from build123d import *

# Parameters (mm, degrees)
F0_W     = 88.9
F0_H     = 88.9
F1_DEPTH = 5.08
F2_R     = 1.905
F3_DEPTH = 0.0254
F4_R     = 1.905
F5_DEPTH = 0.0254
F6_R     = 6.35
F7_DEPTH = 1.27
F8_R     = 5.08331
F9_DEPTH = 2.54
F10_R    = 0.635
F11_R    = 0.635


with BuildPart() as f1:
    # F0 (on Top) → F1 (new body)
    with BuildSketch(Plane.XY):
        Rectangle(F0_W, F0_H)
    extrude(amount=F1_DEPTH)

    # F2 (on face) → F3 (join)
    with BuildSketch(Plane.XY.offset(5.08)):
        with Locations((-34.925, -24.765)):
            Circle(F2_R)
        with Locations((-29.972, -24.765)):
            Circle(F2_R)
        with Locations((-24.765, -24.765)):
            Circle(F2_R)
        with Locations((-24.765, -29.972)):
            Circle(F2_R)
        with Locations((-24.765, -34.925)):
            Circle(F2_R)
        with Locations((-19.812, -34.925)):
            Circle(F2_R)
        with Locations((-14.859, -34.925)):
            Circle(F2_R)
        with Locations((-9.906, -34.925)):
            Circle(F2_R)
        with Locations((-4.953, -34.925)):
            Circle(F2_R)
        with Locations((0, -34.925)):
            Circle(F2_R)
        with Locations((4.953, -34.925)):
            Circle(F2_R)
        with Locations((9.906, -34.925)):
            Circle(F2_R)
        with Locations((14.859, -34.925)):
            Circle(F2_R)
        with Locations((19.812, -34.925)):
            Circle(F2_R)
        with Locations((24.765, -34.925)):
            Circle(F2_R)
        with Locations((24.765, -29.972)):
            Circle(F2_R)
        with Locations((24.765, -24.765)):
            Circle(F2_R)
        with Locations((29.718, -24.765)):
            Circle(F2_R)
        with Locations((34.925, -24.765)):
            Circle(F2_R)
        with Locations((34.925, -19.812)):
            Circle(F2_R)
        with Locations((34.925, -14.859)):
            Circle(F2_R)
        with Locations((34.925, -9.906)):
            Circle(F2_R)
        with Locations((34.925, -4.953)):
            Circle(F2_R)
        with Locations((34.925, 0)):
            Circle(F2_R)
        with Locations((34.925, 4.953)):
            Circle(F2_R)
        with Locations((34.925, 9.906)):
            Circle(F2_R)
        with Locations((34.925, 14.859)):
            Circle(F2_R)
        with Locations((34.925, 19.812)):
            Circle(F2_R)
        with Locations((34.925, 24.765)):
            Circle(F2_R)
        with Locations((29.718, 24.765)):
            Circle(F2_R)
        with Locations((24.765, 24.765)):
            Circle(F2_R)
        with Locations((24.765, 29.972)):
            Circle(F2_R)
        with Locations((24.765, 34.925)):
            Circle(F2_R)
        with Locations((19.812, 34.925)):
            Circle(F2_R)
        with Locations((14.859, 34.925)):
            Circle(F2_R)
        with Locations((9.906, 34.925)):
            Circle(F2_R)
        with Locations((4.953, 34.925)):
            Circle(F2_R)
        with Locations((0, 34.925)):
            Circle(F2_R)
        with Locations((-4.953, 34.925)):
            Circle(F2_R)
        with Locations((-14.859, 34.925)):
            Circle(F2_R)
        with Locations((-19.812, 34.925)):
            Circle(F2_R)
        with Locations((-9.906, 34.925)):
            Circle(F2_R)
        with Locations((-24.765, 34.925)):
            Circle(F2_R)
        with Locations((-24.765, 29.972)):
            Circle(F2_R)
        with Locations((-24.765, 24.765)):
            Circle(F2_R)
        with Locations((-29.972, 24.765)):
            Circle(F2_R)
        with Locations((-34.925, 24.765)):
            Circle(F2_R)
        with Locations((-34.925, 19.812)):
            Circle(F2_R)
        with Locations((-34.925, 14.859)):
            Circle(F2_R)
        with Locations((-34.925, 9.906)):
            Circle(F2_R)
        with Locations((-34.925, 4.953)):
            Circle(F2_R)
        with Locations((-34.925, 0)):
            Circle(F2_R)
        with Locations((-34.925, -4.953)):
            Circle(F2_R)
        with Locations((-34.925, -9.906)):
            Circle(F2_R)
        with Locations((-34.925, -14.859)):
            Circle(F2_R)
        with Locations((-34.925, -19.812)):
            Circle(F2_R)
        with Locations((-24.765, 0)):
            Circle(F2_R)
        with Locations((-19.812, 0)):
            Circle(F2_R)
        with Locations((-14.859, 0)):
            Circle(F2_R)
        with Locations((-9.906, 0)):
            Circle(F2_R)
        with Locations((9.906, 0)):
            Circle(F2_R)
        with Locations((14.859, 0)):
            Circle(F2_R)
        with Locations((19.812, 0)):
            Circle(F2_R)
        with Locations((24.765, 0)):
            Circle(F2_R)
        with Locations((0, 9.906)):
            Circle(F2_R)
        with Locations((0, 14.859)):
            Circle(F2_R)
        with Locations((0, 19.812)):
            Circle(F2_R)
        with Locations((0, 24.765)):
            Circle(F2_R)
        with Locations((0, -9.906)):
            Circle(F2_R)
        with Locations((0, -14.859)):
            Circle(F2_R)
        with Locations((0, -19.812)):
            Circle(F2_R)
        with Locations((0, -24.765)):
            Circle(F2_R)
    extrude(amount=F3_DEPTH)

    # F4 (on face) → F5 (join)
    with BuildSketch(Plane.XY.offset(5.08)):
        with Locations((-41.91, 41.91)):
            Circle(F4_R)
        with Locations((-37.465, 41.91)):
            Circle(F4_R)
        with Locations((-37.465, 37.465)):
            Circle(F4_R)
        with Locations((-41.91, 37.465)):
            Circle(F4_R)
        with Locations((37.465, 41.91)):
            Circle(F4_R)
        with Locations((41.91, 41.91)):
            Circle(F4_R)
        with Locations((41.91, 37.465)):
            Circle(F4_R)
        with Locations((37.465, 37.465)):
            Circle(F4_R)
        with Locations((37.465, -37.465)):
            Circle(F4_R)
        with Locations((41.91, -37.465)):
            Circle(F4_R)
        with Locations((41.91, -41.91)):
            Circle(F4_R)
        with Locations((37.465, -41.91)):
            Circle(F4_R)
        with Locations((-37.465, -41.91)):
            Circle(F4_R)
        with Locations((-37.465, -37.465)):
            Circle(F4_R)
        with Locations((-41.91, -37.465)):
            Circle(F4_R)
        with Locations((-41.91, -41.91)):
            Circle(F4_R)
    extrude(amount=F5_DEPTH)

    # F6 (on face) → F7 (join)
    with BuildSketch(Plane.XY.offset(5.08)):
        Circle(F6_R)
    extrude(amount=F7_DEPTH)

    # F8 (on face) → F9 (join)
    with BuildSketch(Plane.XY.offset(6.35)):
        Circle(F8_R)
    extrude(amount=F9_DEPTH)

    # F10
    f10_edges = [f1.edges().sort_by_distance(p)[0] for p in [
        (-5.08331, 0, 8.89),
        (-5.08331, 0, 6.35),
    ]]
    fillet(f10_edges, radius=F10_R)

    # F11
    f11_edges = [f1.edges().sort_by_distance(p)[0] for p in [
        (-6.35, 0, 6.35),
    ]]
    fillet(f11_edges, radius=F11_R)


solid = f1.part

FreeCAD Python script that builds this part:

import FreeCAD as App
import Part
import Sketcher
Q = App.Units.Quantity


def edges_at(feature, points):
    """Names of the edges that pass closest to the given points."""
    edges = feature.Shape.Edges
    near = lambda p: min(range(len(edges)), key=lambda i: edges[i].distToShape(Part.Vertex(*p))[0])
    return sorted({f"Edge{near(p) + 1}" for p in points})

doc = App.newDocument("Part")
body = doc.addObject("PartDesign::Body", "Body")

# Sketch on XY plane
sketch1 = body.newObject("Sketcher::SketchObject", "Sketch")
sketch1.AttachmentSupport = (doc.getObject("XY_Plane"), [""])
sketch1.MapMode = "FlatFace"
sketch1.addGeometry([
    Part.LineSegment(App.Vector(-44.45, 44.45, 0), App.Vector(-44.45, -44.45, 0)),
    Part.LineSegment(App.Vector(-44.45, -44.45, 0), App.Vector(44.45, -44.45, 0)),
    Part.LineSegment(App.Vector(44.45, -44.45, 0), App.Vector(44.45, 44.45, 0)),
    Part.LineSegment(App.Vector(44.45, 44.45, 0), App.Vector(-44.45, 44.45, 0)),
], False)
sketch1.addConstraint([
    Sketcher.Constraint("Coincident", 0, 2, 1, 1),
    Sketcher.Constraint("Coincident", 1, 2, 2, 1),
    Sketcher.Constraint("Coincident", 2, 2, 3, 1),
    Sketcher.Constraint("Coincident", 3, 2, 0, 1),
    Sketcher.Constraint("Vertical", 0),
    Sketcher.Constraint("Horizontal", 1),
    Sketcher.Constraint("Vertical", 2),
    Sketcher.Constraint("Horizontal", 3),
    Sketcher.Constraint("Symmetric", 0, 2, 2, 2, -1, 1),
    Sketcher.Constraint("Equal", 3, 0),
    Sketcher.Constraint("DistanceX", 1, 1, 1, 2, Q("3.5 in")),
])
pad1 = body.newObject("PartDesign::Pad", "Pad")
pad1.Profile = sketch1
pad1.Length = Q("0.2 in")

# Sketch on XY plane
sketch2 = body.newObject("Sketcher::SketchObject", "Sketch001")
sketch2.AttachmentSupport = (doc.getObject("XY_Plane"), [""])
sketch2.MapMode = "FlatFace"
sketch2.AttachmentOffset = App.Placement(App.Vector(0, 0, 0.2 * 25.4), App.Rotation())
sketch2.addGeometry([
    Part.Circle(App.Vector(-34.925, -24.765, 0), App.Vector(0, 0, 1), 1.905),  # 0
    Part.Circle(App.Vector(-29.972, -24.765, 0), App.Vector(0, 0, 1), 1.905),  # 1
    Part.Circle(App.Vector(-24.765, -24.765, 0), App.Vector(0, 0, 1), 1.905),  # 2
    Part.Circle(App.Vector(-24.765, -29.972, 0), App.Vector(0, 0, 1), 1.905),  # 3
    Part.Circle(App.Vector(-24.765, -34.925, 0), App.Vector(0, 0, 1), 1.905),  # 4
    Part.Circle(App.Vector(-19.812, -34.925, 0), App.Vector(0, 0, 1), 1.905),  # 5
    Part.Circle(App.Vector(-14.859, -34.925, 0), App.Vector(0, 0, 1), 1.905),  # 6
    Part.Circle(App.Vector(-9.906, -34.925, 0), App.Vector(0, 0, 1), 1.905),  # 7
    Part.Circle(App.Vector(-4.953, -34.925, 0), App.Vector(0, 0, 1), 1.905),  # 8
    Part.Circle(App.Vector(0, -34.925, 0), App.Vector(0, 0, 1), 1.905),  # 9
    Part.Circle(App.Vector(4.953, -34.925, 0), App.Vector(0, 0, 1), 1.905),  # 10
    Part.Circle(App.Vector(9.906, -34.925, 0), App.Vector(0, 0, 1), 1.905),  # 11
    Part.Circle(App.Vector(14.859, -34.925, 0), App.Vector(0, 0, 1), 1.905),  # 12
    Part.Circle(App.Vector(19.812, -34.925, 0), App.Vector(0, 0, 1), 1.905),  # 13
    Part.Circle(App.Vector(24.765, -34.925, 0), App.Vector(0, 0, 1), 1.905),  # 14
    Part.Circle(App.Vector(24.765, -29.972, 0), App.Vector(0, 0, 1), 1.905),  # 15
    Part.Circle(App.Vector(24.765, -24.765, 0), App.Vector(0, 0, 1), 1.905),  # 16
    Part.Circle(App.Vector(29.718, -24.765, 0), App.Vector(0, 0, 1), 1.905),  # 17
    Part.Circle(App.Vector(34.925, -24.765, 0), App.Vector(0, 0, 1), 1.905),  # 18
    Part.Circle(App.Vector(34.925, -19.812, 0), App.Vector(0, 0, 1), 1.905),  # 19
    Part.Circle(App.Vector(34.925, -14.859, 0), App.Vector(0, 0, 1), 1.905),  # 20
    Part.Circle(App.Vector(34.925, -9.906, 0), App.Vector(0, 0, 1), 1.905),  # 21
    Part.Circle(App.Vector(34.925, -4.953, 0), App.Vector(0, 0, 1), 1.905),  # 22
    Part.Circle(App.Vector(34.925, 0, 0), App.Vector(0, 0, 1), 1.905),  # 23
    Part.Circle(App.Vector(34.925, 4.953, 0), App.Vector(0, 0, 1), 1.905),  # 24
    Part.Circle(App.Vector(34.925, 9.906, 0), App.Vector(0, 0, 1), 1.905),  # 25
    Part.Circle(App.Vector(34.925, 14.859, 0), App.Vector(0, 0, 1), 1.905),  # 26
    Part.Circle(App.Vector(34.925, 19.812, 0), App.Vector(0, 0, 1), 1.905),  # 27
    Part.Circle(App.Vector(34.925, 24.765, 0), App.Vector(0, 0, 1), 1.905),  # 28
    Part.Circle(App.Vector(29.718, 24.765, 0), App.Vector(0, 0, 1), 1.905),  # 29
    Part.Circle(App.Vector(24.765, 24.765, 0), App.Vector(0, 0, 1), 1.905),  # 30
    Part.Circle(App.Vector(24.765, 29.972, 0), App.Vector(0, 0, 1), 1.905),  # 31
    Part.Circle(App.Vector(24.765, 34.925, 0), App.Vector(0, 0, 1), 1.905),  # 32
    Part.Circle(App.Vector(19.812, 34.925, 0), App.Vector(0, 0, 1), 1.905),  # 33
    Part.Circle(App.Vector(14.859, 34.925, 0), App.Vector(0, 0, 1), 1.905),  # 34
    Part.Circle(App.Vector(9.906, 34.925, 0), App.Vector(0, 0, 1), 1.905),  # 35
    Part.Circle(App.Vector(4.953, 34.925, 0), App.Vector(0, 0, 1), 1.905),  # 36
    Part.Circle(App.Vector(0, 34.925, 0), App.Vector(0, 0, 1), 1.905),  # 37
    Part.Circle(App.Vector(-4.953, 34.925, 0), App.Vector(0, 0, 1), 1.905),  # 38
    Part.Circle(App.Vector(-14.859, 34.925, 0), App.Vector(0, 0, 1), 1.905),  # 39
    Part.Circle(App.Vector(-19.812, 34.925, 0), App.Vector(0, 0, 1), 1.905),  # 40
    Part.Circle(App.Vector(-9.906, 34.925, 0), App.Vector(0, 0, 1), 1.905),  # 41
    Part.Circle(App.Vector(-24.765, 34.925, 0), App.Vector(0, 0, 1), 1.905),  # 42
    Part.Circle(App.Vector(-24.765, 29.972, 0), App.Vector(0, 0, 1), 1.905),  # 43
    Part.Circle(App.Vector(-24.765, 24.765, 0), App.Vector(0, 0, 1), 1.905),  # 44
    Part.Circle(App.Vector(-29.972, 24.765, 0), App.Vector(0, 0, 1), 1.905),  # 45
    Part.Circle(App.Vector(-34.925, 24.765, 0), App.Vector(0, 0, 1), 1.905),  # 46
    Part.Circle(App.Vector(-34.925, 19.812, 0), App.Vector(0, 0, 1), 1.905),  # 47
    Part.Circle(App.Vector(-34.925, 14.859, 0), App.Vector(0, 0, 1), 1.905),  # 48
    Part.Circle(App.Vector(-34.925, 9.906, 0), App.Vector(0, 0, 1), 1.905),  # 49
    Part.Circle(App.Vector(-34.925, 4.953, 0), App.Vector(0, 0, 1), 1.905),  # 50
    Part.Circle(App.Vector(-34.925, 0, 0), App.Vector(0, 0, 1), 1.905),  # 51
    Part.Circle(App.Vector(-34.925, -4.953, 0), App.Vector(0, 0, 1), 1.905),  # 52
    Part.Circle(App.Vector(-34.925, -9.906, 0), App.Vector(0, 0, 1), 1.905),  # 53
    Part.Circle(App.Vector(-34.925, -14.859, 0), App.Vector(0, 0, 1), 1.905),  # 54
    Part.Circle(App.Vector(-34.925, -19.812, 0), App.Vector(0, 0, 1), 1.905),  # 55
    Part.Circle(App.Vector(-24.765, 0, 0), App.Vector(0, 0, 1), 1.905),  # 56
    Part.Circle(App.Vector(-19.812, 0, 0), App.Vector(0, 0, 1), 1.905),  # 57
    Part.Circle(App.Vector(-14.859, 0, 0), App.Vector(0, 0, 1), 1.905),  # 58
    Part.Circle(App.Vector(-9.906, 0, 0), App.Vector(0, 0, 1), 1.905),  # 59
    Part.Circle(App.Vector(9.906, 0, 0), App.Vector(0, 0, 1), 1.905),  # 60
    Part.Circle(App.Vector(14.859, 0, 0), App.Vector(0, 0, 1), 1.905),  # 61
    Part.Circle(App.Vector(19.812, 0, 0), App.Vector(0, 0, 1), 1.905),  # 62
    Part.Circle(App.Vector(24.765, 0, 0), App.Vector(0, 0, 1), 1.905),  # 63
    Part.Circle(App.Vector(0, 9.906, 0), App.Vector(0, 0, 1), 1.905),  # 64
    Part.Circle(App.Vector(0, 14.859, 0), App.Vector(0, 0, 1), 1.905),  # 65
    Part.Circle(App.Vector(0, 19.812, 0), App.Vector(0, 0, 1), 1.905),  # 66
    Part.Circle(App.Vector(0, 24.765, 0), App.Vector(0, 0, 1), 1.905),  # 67
    Part.Circle(App.Vector(0, -9.906, 0), App.Vector(0, 0, 1), 1.905),  # 68
    Part.Circle(App.Vector(0, -14.859, 0), App.Vector(0, 0, 1), 1.905),  # 69
    Part.Circle(App.Vector(0, -19.812, 0), App.Vector(0, 0, 1), 1.905),  # 70
    Part.Circle(App.Vector(0, -24.765, 0), App.Vector(0, 0, 1), 1.905),  # 71
], False)
sketch2.addConstraint([
    Sketcher.Constraint("Equal", 0, 1),
    Sketcher.Constraint("Equal", 1, 2),
    Sketcher.Constraint("Equal", 2, 3),
    Sketcher.Constraint("Equal", 3, 4),
    Sketcher.Constraint("Equal", 4, 5),
    Sketcher.Constraint("Equal", 5, 6),
    Sketcher.Constraint("Equal", 6, 7),
    Sketcher.Constraint("Equal", 7, 8),
    Sketcher.Constraint("Equal", 8, 9),
    Sketcher.Constraint("Equal", 9, 10),
    Sketcher.Constraint("Equal", 10, 11),
    Sketcher.Constraint("Equal", 11, 12),
    Sketcher.Constraint("Equal", 12, 13),
    Sketcher.Constraint("Equal", 13, 14),
    Sketcher.Constraint("Equal", 14, 15),
    Sketcher.Constraint("Equal", 15, 16),
    Sketcher.Constraint("Equal", 16, 17),
    Sketcher.Constraint("Equal", 17, 18),
    Sketcher.Constraint("Equal", 18, 19),
    Sketcher.Constraint("Equal", 19, 20),
    Sketcher.Constraint("Equal", 20, 21),
    Sketcher.Constraint("Equal", 21, 22),
    Sketcher.Constraint("Equal", 22, 23),
    Sketcher.Constraint("Equal", 23, 24),
    Sketcher.Constraint("Equal", 24, 25),
    Sketcher.Constraint("Equal", 25, 26),
    Sketcher.Constraint("Equal", 26, 27),
    Sketcher.Constraint("Equal", 27, 28),
    Sketcher.Constraint("Equal", 28, 29),
    Sketcher.Constraint("Equal", 29, 30),
    Sketcher.Constraint("Equal", 30, 31),
    Sketcher.Constraint("Equal", 31, 32),
    Sketcher.Constraint("Equal", 32, 33),
    Sketcher.Constraint("Equal", 33, 34),
    Sketcher.Constraint("Equal", 34, 35),
    Sketcher.Constraint("Equal", 35, 36),
    Sketcher.Constraint("Equal", 36, 37),
    Sketcher.Constraint("Equal", 37, 38),
    Sketcher.Constraint("Equal", 38, 39),
    Sketcher.Constraint("Equal", 39, 40),
    Sketcher.Constraint("Equal", 40, 41),
    Sketcher.Constraint("Equal", 41, 42),
    Sketcher.Constraint("Equal", 42, 43),
    Sketcher.Constraint("Equal", 43, 44),
    Sketcher.Constraint("Equal", 44, 45),
    Sketcher.Constraint("Equal", 45, 46),
    Sketcher.Constraint("Equal", 46, 47),
    Sketcher.Constraint("Equal", 47, 48),
    Sketcher.Constraint("Equal", 48, 49),
    Sketcher.Constraint("Equal", 49, 50),
    Sketcher.Constraint("Equal", 50, 51),
    Sketcher.Constraint("Equal", 51, 52),
    Sketcher.Constraint("Equal", 52, 53),
    Sketcher.Constraint("Equal", 53, 54),
    Sketcher.Constraint("Equal", 54, 55),
    Sketcher.Constraint("Equal", 55, 56),
    Sketcher.Constraint("Equal", 56, 57),
    Sketcher.Constraint("Equal", 57, 58),
    Sketcher.Constraint("Equal", 58, 59),
    Sketcher.Constraint("Equal", 59, 60),
    Sketcher.Constraint("Equal", 60, 61),
    Sketcher.Constraint("Equal", 61, 62),
    Sketcher.Constraint("Equal", 62, 63),
    Sketcher.Constraint("Equal", 63, 64),
    Sketcher.Constraint("Equal", 64, 65),
    Sketcher.Constraint("Equal", 65, 66),
    Sketcher.Constraint("Equal", 66, 67),
    Sketcher.Constraint("Equal", 67, 68),
    Sketcher.Constraint("Equal", 68, 69),
    Sketcher.Constraint("Equal", 69, 70),
    Sketcher.Constraint("Equal", 70, 71),
    Sketcher.Constraint("Symmetric", 0, 3, 28, 3, -1, 1),
    Sketcher.Constraint("Symmetric", 2, 3, 30, 3, -1, 1),
    Sketcher.Constraint("Symmetric", 3, 3, 31, 3, -1, 1),
    Sketcher.Constraint("Symmetric", 4, 3, 32, 3, -1, 1),
    Sketcher.Constraint("Symmetric", 5, 3, 33, 3, -1, 1),
    Sketcher.Constraint("Symmetric", 6, 3, 34, 3, -1, 1),
    Sketcher.Constraint("Symmetric", 7, 3, 35, 3, -1, 1),
    Sketcher.Constraint("Symmetric", 8, 3, 36, 3, -1, 1),
    Sketcher.Constraint("Symmetric", 9, 3, 37, 3, -1, 1),
    Sketcher.Constraint("Symmetric", 10, 3, 38, 3, -1, 1),
    Sketcher.Constraint("Symmetric", 12, 3, 39, 3, -1, 1),
    Sketcher.Constraint("Symmetric", 13, 3, 40, 3, -1, 1),
    Sketcher.Constraint("Symmetric", 11, 3, 41, 3, -1, 1),
    Sketcher.Constraint("Symmetric", 14, 3, 42, 3, -1, 1),
    Sketcher.Constraint("Symmetric", 15, 3, 43, 3, -1, 1),
    Sketcher.Constraint("Symmetric", 16, 3, 44, 3, -1, 1),
    Sketcher.Constraint("Symmetric", 18, 3, 46, 3, -1, 1),
    Sketcher.Constraint("Symmetric", 19, 3, 47, 3, -1, 1),
    Sketcher.Constraint("Symmetric", 20, 3, 48, 3, -1, 1),
    Sketcher.Constraint("Symmetric", 21, 3, 49, 3, -1, 1),
    Sketcher.Constraint("Symmetric", 22, 3, 50, 3, -1, 1),
    Sketcher.Constraint("Symmetric", 23, 3, 51, 3, -1, 1),
    Sketcher.Constraint("Symmetric", 24, 3, 52, 3, -1, 1),
    Sketcher.Constraint("Symmetric", 25, 3, 53, 3, -1, 1),
    Sketcher.Constraint("Symmetric", 26, 3, 54, 3, -1, 1),
    Sketcher.Constraint("Symmetric", 27, 3, 55, 3, -1, 1),
    Sketcher.Constraint("Symmetric", 59, 3, 60, 3, -1, 1),
    Sketcher.Constraint("Symmetric", 58, 3, 61, 3, -1, 1),
    Sketcher.Constraint("Symmetric", 57, 3, 62, 3, -1, 1),
    Sketcher.Constraint("Symmetric", 56, 3, 63, 3, -1, 1),
    Sketcher.Constraint("Symmetric", 64, 3, 68, 3, -1, 1),
    Sketcher.Constraint("Symmetric", 65, 3, 69, 3, -1, 1),
    Sketcher.Constraint("Symmetric", 66, 3, 70, 3, -1, 1),
    Sketcher.Constraint("Symmetric", 67, 3, 71, 3, -1, 1),
    Sketcher.Constraint("Symmetric", 8, 3, 10, 3, -2),
    Sketcher.Constraint("Symmetric", 7, 3, 11, 3, -2),
    Sketcher.Constraint("Symmetric", 6, 3, 12, 3, -2),
    Sketcher.Constraint("Symmetric", 5, 3, 13, 3, -2),
    Sketcher.Constraint("Symmetric", 4, 3, 14, 3, -2),
    Sketcher.Constraint("Symmetric", 3, 3, 15, 3, -2),
    Sketcher.Constraint("Symmetric", 2, 3, 16, 3, -2),
    Sketcher.Constraint("Symmetric", 0, 3, 18, 3, -2),
    Sketcher.Constraint("Symmetric", 27, 3, 47, 3, -2),
    Sketcher.Constraint("Symmetric", 26, 3, 48, 3, -2),
    Sketcher.Constraint("Symmetric", 25, 3, 49, 3, -2),
    Sketcher.Constraint("Symmetric", 24, 3, 50, 3, -2),
    Sketcher.Constraint("Symmetric", 17, 3, 29, 3, -1),
    Sketcher.Constraint("Symmetric", 1, 3, 45, 3, -1),
    Sketcher.Constraint("PointOnObject", 9, 3, -2),
    Sketcher.Constraint("PointOnObject", 23, 3, -1),
    Sketcher.Constraint("PointOnObject", 56, 3, -1),
    Sketcher.Constraint("PointOnObject", 57, 3, -1),
    Sketcher.Constraint("PointOnObject", 58, 3, -1),
    Sketcher.Constraint("PointOnObject", 59, 3, -1),
    Sketcher.Constraint("PointOnObject", 64, 3, -2),
    Sketcher.Constraint("PointOnObject", 65, 3, -2),
    Sketcher.Constraint("PointOnObject", 66, 3, -2),
    Sketcher.Constraint("PointOnObject", 67, 3, -2),
    Sketcher.Constraint("Horizontal", 0, 3, 1, 3),
    Sketcher.Constraint("Horizontal", 1, 3, 2, 3),
    Sketcher.Constraint("Horizontal", 4, 3, 5, 3),
    Sketcher.Constraint("Horizontal", 5, 3, 6, 3),
    Sketcher.Constraint("Horizontal", 6, 3, 7, 3),
    Sketcher.Constraint("Horizontal", 7, 3, 8, 3),
    Sketcher.Constraint("Horizontal", 8, 3, 9, 3),
    Sketcher.Constraint("Horizontal", 16, 3, 17, 3),
    Sketcher.Constraint("Horizontal", 49, 3, 64, 3),
    Sketcher.Constraint("Horizontal", 48, 3, 65, 3),
    Sketcher.Constraint("Horizontal", 47, 3, 66, 3),
    Sketcher.Constraint("Horizontal", 46, 3, 67, 3),
    Sketcher.Constraint("Vertical", 2, 3, 3, 3),
    Sketcher.Constraint("Vertical", 3, 3, 4, 3),
    Sketcher.Constraint("Vertical", 18, 3, 19, 3),
    Sketcher.Constraint("Vertical", 19, 3, 20, 3),
    Sketcher.Constraint("Vertical", 20, 3, 21, 3),
    Sketcher.Constraint("Vertical", 21, 3, 22, 3),
    Sketcher.Constraint("Vertical", 22, 3, 23, 3),
    Sketcher.Constraint("Vertical", 44, 3, 56, 3),
    Sketcher.Constraint("Vertical", 40, 3, 57, 3),
    Sketcher.Constraint("Vertical", 39, 3, 58, 3),
    Sketcher.Constraint("Vertical", 41, 3, 59, 3),
    Sketcher.Constraint("Diameter", 0, Q("0.15 in")),
    Sketcher.Constraint("DistanceX", 1, 3, -1, 1, Q("1.18 in")),
    Sketcher.Constraint("DistanceY", 3, 3, -1, 1, Q("1.18 in")),
    Sketcher.Constraint("DistanceX", 5, 3, -1, 1, Q("0.78 in")),
    Sketcher.Constraint("DistanceX", 7, 3, -1, 1, Q("0.39 in")),
    Sketcher.Constraint("DistanceX", -1, 1, 17, 3, Q("1.17 in")),
    Sketcher.Constraint("DistanceY", 19, 3, -1, 1, Q("0.78 in")),
    Sketcher.Constraint("DistanceY", 21, 3, -1, 1, Q("0.39 in")),
    Sketcher.Constraint("DistanceX", 0, 3, -1, 1, Q("1.375 in")),
    Sketcher.Constraint("DistanceY", 0, 3, -1, 1, Q("0.975 in")),
    Sketcher.Constraint("DistanceX", 2, 3, -1, 1, Q("0.975 in")),
    Sketcher.Constraint("DistanceY", 4, 3, -1, 1, Q("1.375 in")),
    Sketcher.Constraint("DistanceX", 6, 3, -1, 1, Q("0.585 in")),
    Sketcher.Constraint("DistanceX", 8, 3, -1, 1, Q("0.195 in")),
    Sketcher.Constraint("DistanceY", 20, 3, -1, 1, Q("0.585 in")),
    Sketcher.Constraint("DistanceY", 22, 3, -1, 1, Q("0.195 in")),
])
pad2 = body.newObject("PartDesign::Pad", "Pad001")
pad2.Profile = sketch2
pad2.Length = Q("0.001 in")

# Sketch on XY plane
sketch3 = body.newObject("Sketcher::SketchObject", "Sketch002")
sketch3.AttachmentSupport = (doc.getObject("XY_Plane"), [""])
sketch3.MapMode = "FlatFace"
sketch3.AttachmentOffset = App.Placement(App.Vector(0, 0, 0.2 * 25.4), App.Rotation())
sketch3.addGeometry([
    Part.Circle(App.Vector(-41.91, 41.91, 0), App.Vector(0, 0, 1), 1.905),  # 0
    Part.Circle(App.Vector(-37.465, 41.91, 0), App.Vector(0, 0, 1), 1.905),  # 1
    Part.Circle(App.Vector(-37.465, 37.465, 0), App.Vector(0, 0, 1), 1.905),  # 2
    Part.Circle(App.Vector(-41.91, 37.465, 0), App.Vector(0, 0, 1), 1.905),  # 3
    Part.Circle(App.Vector(37.465, 41.91, 0), App.Vector(0, 0, 1), 1.905),  # 4
    Part.Circle(App.Vector(41.91, 41.91, 0), App.Vector(0, 0, 1), 1.905),  # 5
    Part.Circle(App.Vector(41.91, 37.465, 0), App.Vector(0, 0, 1), 1.905),  # 6
    Part.Circle(App.Vector(37.465, 37.465, 0), App.Vector(0, 0, 1), 1.905),  # 7
    Part.Circle(App.Vector(37.465, -37.465, 0), App.Vector(0, 0, 1), 1.905),  # 8
    Part.Circle(App.Vector(41.91, -37.465, 0), App.Vector(0, 0, 1), 1.905),  # 9
    Part.Circle(App.Vector(41.91, -41.91, 0), App.Vector(0, 0, 1), 1.905),  # 10
    Part.Circle(App.Vector(37.465, -41.91, 0), App.Vector(0, 0, 1), 1.905),  # 11
    Part.Circle(App.Vector(-37.465, -41.91, 0), App.Vector(0, 0, 1), 1.905),  # 12
    Part.Circle(App.Vector(-37.465, -37.465, 0), App.Vector(0, 0, 1), 1.905),  # 13
    Part.Circle(App.Vector(-41.91, -37.465, 0), App.Vector(0, 0, 1), 1.905),  # 14
    Part.Circle(App.Vector(-41.91, -41.91, 0), App.Vector(0, 0, 1), 1.905),  # 15
], False)
sketch3.addConstraint([
    Sketcher.Constraint("Equal", 0, 1),
    Sketcher.Constraint("Equal", 1, 2),
    Sketcher.Constraint("Equal", 2, 3),
    Sketcher.Constraint("Equal", 3, 4),
    Sketcher.Constraint("Equal", 4, 5),
    Sketcher.Constraint("Equal", 5, 6),
    Sketcher.Constraint("Equal", 6, 7),
    Sketcher.Constraint("Equal", 7, 8),
    Sketcher.Constraint("Equal", 8, 9),
    Sketcher.Constraint("Equal", 9, 10),
    Sketcher.Constraint("Equal", 10, 11),
    Sketcher.Constraint("Equal", 11, 12),
    Sketcher.Constraint("Equal", 12, 13),
    Sketcher.Constraint("Equal", 13, 14),
    Sketcher.Constraint("Equal", 14, 15),
    Sketcher.Constraint("Symmetric", 2, 3, 8, 3, -1, 1),
    Sketcher.Constraint("Symmetric", 3, 3, 9, 3, -1, 1),
    Sketcher.Constraint("Symmetric", 0, 3, 10, 3, -1, 1),
    Sketcher.Constraint("Symmetric", 1, 3, 11, 3, -1, 1),
    Sketcher.Constraint("Symmetric", 4, 3, 12, 3, -1, 1),
    Sketcher.Constraint("Symmetric", 7, 3, 13, 3, -1, 1),
    Sketcher.Constraint("Symmetric", 6, 3, 14, 3, -1, 1),
    Sketcher.Constraint("Symmetric", 5, 3, 15, 3, -1, 1),
    Sketcher.Constraint("Symmetric", 1, 3, 4, 3, -2),
    Sketcher.Constraint("Symmetric", 0, 3, 5, 3, -2),
    Sketcher.Constraint("Symmetric", 3, 3, 6, 3, -2),
    Sketcher.Constraint("Symmetric", 2, 3, 7, 3, -2),
    Sketcher.Constraint("Horizontal", 0, 3, 1, 3),
    Sketcher.Constraint("Horizontal", 2, 3, 3, 3),
    Sketcher.Constraint("Vertical", 1, 3, 2, 3),
    Sketcher.Constraint("Vertical", 0, 3, 3, 3),
    Sketcher.Constraint("Diameter", 0, Q("0.15 in")),
    Sketcher.Constraint("DistanceX", 0, 3, 5, 3, Q("3.3 in")),
    Sketcher.Constraint("DistanceY", 10, 3, 5, 3, Q("3.3 in")),
    Sketcher.Constraint("DistanceX", 1, 3, 4, 3, Q("2.95 in")),
    Sketcher.Constraint("DistanceY", 8, 3, 7, 3, Q("2.95 in")),
])
pad3 = body.newObject("PartDesign::Pad", "Pad002")
pad3.Profile = sketch3
pad3.Length = Q("0.001 in")

# Sketch on XY plane
sketch4 = body.newObject("Sketcher::SketchObject", "Sketch003")
sketch4.AttachmentSupport = (doc.getObject("XY_Plane"), [""])
sketch4.MapMode = "FlatFace"
sketch4.AttachmentOffset = App.Placement(App.Vector(0, 0, 0.2 * 25.4), App.Rotation())
sketch4.addGeometry(Part.Circle(App.Vector(0, 0, 0), App.Vector(0, 0, 1), 6.35), False)
sketch4.addConstraint([
    Sketcher.Constraint("Coincident", 0, 3, -1, 1),
    Sketcher.Constraint("Diameter", 0, Q("0.5 in")),
])
pad4 = body.newObject("PartDesign::Pad", "Pad003")
pad4.Profile = sketch4
pad4.Length = Q("0.05 in")

# Sketch on XY plane
sketch5 = body.newObject("Sketcher::SketchObject", "Sketch004")
sketch5.AttachmentSupport = (doc.getObject("XY_Plane"), [""])
sketch5.MapMode = "FlatFace"
sketch5.AttachmentOffset = App.Placement(App.Vector(0, 0, 0.25 * 25.4), App.Rotation())
sketch5.addGeometry(Part.Circle(App.Vector(0, 0, 0), App.Vector(0, 0, 1), 5.08331), False)
sketch5.addConstraint([
    Sketcher.Constraint("Coincident", 0, 3, -1, 1),
    Sketcher.Constraint("Diameter", 0, Q("10.16662 mm")),
])
pad5 = body.newObject("PartDesign::Pad", "Pad004")
pad5.Profile = sketch5
pad5.Length = Q("0.1 in")
doc.recompute()

fillet = body.newObject("PartDesign::Fillet", "Fillet")
fillet.Base = (pad5, edges_at(pad5, [(-5.083, 0, 8.89), (-5.083, 0, 6.35)]))
fillet.Radius = Q("0.025 in")
doc.recompute()

fillet2 = body.newObject("PartDesign::Fillet", "Fillet001")
fillet2.Base = (fillet, edges_at(fillet, [(-6.35, 0, 6.35)]))
fillet2.Radius = Q("0.025 in")

doc.recompute()
